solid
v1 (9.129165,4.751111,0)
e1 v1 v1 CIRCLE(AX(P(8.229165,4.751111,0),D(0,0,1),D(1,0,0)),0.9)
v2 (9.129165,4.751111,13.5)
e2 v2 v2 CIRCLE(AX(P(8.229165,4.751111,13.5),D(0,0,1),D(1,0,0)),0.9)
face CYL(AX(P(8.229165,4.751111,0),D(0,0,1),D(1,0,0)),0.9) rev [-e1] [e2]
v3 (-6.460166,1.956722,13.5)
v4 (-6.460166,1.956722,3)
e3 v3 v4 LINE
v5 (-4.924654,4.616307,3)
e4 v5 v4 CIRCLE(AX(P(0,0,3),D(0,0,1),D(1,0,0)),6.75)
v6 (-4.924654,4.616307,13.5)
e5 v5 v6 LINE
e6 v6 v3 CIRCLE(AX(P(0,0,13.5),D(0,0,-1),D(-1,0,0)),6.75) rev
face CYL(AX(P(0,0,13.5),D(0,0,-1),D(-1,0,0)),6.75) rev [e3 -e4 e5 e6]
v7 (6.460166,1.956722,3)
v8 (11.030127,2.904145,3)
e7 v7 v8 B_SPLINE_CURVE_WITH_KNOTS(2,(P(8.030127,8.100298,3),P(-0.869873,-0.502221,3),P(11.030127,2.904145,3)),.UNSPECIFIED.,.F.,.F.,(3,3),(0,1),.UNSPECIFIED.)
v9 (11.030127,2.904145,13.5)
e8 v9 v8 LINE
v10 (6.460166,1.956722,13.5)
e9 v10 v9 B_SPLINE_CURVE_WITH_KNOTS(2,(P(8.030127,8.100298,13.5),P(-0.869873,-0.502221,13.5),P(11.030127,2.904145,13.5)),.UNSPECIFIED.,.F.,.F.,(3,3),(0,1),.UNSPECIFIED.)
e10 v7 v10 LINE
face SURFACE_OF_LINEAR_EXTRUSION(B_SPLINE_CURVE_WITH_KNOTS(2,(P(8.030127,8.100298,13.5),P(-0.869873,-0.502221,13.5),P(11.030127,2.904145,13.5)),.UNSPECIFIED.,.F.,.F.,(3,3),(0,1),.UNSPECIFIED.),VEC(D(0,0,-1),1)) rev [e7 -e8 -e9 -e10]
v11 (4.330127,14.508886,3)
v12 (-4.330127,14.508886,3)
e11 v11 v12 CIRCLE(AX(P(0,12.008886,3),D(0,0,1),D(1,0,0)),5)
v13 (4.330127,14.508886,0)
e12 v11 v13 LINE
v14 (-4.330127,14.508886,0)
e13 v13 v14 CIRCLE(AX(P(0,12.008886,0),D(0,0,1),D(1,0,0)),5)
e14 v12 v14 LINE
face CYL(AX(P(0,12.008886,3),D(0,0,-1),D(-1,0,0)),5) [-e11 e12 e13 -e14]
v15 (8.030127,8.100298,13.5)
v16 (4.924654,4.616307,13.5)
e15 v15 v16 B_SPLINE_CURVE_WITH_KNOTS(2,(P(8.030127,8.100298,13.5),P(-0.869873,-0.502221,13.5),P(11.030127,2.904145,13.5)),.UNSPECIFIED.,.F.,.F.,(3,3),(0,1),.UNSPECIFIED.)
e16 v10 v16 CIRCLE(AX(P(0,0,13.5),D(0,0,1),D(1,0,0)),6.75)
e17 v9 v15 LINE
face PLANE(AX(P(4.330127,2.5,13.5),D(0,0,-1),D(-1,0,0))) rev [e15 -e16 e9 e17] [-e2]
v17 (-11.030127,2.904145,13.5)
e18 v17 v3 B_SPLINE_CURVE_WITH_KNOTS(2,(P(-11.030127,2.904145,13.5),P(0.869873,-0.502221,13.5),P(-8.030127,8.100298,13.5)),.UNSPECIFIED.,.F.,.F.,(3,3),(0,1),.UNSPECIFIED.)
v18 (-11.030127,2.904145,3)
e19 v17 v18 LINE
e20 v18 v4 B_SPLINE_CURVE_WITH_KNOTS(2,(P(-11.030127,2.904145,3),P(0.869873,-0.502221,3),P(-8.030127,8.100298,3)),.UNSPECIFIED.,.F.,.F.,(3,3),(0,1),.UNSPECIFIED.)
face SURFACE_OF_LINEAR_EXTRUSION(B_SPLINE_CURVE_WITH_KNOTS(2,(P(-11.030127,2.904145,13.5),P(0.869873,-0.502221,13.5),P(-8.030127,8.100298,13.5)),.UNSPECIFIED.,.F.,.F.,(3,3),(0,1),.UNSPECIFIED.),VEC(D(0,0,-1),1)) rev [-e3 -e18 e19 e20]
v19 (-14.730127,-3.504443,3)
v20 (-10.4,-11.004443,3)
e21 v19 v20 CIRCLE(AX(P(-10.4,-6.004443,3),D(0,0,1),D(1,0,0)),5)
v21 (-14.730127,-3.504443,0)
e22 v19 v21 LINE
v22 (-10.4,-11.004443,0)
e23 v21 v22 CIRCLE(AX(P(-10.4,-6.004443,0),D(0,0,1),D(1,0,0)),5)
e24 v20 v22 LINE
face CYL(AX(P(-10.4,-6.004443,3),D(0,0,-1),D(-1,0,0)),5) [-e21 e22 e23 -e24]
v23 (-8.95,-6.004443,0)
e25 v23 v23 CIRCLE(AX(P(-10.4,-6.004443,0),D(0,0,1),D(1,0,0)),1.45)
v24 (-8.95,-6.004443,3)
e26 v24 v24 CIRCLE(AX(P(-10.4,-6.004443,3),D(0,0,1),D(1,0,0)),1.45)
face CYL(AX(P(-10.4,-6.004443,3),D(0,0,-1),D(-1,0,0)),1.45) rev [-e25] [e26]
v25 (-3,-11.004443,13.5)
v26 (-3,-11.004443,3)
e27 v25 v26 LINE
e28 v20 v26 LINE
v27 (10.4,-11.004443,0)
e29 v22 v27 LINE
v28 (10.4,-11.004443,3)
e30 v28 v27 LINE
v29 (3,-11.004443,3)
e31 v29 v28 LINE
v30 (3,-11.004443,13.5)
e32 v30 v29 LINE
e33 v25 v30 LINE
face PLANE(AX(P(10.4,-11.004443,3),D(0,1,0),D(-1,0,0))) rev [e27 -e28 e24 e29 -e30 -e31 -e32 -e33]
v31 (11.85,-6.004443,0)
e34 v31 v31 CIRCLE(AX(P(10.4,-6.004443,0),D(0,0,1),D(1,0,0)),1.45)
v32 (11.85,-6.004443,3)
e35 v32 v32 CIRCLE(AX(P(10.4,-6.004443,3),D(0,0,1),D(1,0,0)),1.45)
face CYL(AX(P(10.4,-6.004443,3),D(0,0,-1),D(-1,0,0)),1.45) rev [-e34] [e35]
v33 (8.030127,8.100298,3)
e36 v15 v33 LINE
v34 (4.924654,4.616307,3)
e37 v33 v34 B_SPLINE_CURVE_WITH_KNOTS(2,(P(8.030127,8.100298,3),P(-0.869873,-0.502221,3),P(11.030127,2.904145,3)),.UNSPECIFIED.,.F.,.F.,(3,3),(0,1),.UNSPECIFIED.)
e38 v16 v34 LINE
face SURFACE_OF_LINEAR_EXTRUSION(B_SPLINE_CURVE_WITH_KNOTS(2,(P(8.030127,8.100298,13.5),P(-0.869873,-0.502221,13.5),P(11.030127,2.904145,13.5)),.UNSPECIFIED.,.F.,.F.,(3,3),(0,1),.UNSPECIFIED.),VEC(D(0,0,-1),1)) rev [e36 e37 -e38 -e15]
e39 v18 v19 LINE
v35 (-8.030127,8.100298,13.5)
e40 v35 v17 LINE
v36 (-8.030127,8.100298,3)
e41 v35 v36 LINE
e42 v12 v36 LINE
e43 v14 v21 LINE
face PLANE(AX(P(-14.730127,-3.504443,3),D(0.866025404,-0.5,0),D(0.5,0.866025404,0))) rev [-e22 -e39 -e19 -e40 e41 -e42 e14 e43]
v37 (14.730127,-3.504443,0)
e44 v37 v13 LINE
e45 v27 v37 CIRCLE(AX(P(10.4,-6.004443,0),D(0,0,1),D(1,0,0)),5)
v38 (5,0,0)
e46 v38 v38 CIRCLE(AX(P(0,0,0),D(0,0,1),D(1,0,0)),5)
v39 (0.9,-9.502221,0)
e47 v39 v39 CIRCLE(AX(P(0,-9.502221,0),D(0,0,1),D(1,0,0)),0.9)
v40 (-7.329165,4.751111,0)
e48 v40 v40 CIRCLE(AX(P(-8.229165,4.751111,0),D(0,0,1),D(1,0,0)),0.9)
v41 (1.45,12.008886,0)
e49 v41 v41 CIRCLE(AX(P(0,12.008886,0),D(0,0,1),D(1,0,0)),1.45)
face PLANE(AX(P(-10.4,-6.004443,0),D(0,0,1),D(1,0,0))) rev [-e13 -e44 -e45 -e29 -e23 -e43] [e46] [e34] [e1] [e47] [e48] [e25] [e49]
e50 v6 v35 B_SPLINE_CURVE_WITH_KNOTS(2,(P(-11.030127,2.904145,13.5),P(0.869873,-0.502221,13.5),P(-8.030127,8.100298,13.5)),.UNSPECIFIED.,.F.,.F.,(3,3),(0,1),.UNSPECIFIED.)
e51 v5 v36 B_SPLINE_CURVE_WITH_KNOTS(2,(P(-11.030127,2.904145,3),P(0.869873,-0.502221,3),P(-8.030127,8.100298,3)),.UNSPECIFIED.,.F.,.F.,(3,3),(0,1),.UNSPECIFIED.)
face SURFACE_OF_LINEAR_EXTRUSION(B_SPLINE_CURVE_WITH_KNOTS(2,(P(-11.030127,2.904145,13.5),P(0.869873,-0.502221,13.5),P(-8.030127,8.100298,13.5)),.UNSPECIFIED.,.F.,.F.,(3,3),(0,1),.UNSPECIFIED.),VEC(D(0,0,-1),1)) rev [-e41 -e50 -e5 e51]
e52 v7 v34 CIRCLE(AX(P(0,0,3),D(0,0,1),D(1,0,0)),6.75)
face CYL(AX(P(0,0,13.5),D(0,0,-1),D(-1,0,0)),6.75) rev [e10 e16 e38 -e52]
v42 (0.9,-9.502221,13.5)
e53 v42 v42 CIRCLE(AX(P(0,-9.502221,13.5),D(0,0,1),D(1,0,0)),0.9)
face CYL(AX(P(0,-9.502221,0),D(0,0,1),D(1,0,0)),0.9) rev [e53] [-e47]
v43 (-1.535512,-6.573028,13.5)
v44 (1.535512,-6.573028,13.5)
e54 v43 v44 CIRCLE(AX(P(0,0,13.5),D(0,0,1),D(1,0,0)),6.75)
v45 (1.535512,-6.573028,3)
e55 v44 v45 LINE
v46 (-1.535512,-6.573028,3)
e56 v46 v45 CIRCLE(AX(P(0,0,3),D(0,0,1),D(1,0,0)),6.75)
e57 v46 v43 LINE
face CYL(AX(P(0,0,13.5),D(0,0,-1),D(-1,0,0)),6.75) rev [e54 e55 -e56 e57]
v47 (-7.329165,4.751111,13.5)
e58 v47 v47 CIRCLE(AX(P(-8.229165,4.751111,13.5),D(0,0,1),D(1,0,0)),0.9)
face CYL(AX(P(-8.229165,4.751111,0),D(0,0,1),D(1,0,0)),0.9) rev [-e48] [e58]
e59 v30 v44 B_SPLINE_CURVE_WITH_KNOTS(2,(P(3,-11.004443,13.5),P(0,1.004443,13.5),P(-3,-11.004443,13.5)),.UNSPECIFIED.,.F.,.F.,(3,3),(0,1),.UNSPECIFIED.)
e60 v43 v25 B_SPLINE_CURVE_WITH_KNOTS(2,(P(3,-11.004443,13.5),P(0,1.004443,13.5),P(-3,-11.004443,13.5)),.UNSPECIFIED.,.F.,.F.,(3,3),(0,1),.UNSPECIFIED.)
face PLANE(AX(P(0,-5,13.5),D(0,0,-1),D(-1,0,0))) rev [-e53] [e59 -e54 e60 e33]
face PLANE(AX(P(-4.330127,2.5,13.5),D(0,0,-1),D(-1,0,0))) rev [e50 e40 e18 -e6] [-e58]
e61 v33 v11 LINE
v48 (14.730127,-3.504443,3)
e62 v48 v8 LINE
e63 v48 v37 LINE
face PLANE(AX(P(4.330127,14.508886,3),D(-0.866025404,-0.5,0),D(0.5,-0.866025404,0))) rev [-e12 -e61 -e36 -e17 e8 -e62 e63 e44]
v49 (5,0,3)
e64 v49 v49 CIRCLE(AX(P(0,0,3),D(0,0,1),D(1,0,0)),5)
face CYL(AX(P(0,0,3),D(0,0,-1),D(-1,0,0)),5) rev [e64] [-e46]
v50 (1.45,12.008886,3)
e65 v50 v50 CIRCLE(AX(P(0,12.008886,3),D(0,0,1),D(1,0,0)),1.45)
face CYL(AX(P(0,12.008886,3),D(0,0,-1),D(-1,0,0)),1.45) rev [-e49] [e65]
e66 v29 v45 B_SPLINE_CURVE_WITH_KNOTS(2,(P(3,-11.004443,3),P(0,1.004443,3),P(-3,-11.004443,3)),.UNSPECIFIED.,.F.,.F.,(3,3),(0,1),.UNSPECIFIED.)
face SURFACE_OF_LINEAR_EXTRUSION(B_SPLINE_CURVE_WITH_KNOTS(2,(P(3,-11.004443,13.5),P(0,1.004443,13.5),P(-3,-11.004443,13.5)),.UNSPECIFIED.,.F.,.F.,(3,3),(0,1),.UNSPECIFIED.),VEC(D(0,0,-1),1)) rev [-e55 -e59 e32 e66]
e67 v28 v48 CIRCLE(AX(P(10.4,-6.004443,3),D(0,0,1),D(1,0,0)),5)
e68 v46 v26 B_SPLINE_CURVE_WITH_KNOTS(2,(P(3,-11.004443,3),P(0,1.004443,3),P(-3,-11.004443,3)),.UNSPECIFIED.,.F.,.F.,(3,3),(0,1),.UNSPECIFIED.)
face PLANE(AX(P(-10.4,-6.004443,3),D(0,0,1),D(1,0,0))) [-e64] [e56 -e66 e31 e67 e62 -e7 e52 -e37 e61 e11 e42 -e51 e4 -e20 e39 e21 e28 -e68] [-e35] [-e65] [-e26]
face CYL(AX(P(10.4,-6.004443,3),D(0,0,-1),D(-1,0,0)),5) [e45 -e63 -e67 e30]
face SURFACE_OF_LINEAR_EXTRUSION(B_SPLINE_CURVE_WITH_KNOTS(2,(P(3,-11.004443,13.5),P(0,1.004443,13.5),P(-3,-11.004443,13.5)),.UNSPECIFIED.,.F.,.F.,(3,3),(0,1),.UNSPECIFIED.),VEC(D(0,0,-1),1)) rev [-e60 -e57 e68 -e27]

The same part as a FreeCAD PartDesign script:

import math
import FreeCAD as App
import Part
import Sketcher

V = App.Vector
Q = App.Units.Quantity

doc = App.newDocument("Part")
body = doc.addObject("PartDesign::Body", "Body")

# Sketch on XY plane
sketch1 = body.newObject("Sketcher::SketchObject", "Sketch")
sketch1.AttachmentSupport = (doc.getObject("XY_Plane"), [""])
sketch1.MapMode = "FlatFace"
sketch1.addGeometry([
    Part.LineSegment(V(-4.3, 14.5, 0), V(-14.7, -3.5, 0)),  # 0
    Part.ArcOfCircle(Part.Circle(V(-10.4, -6, 0), V(0, 0, 1), 5), math.radians(150), math.radians(270)),  # 1
    Part.LineSegment(V(-10.4, -11, 0), V(10.4, -11, 0)),  # 2
    Part.ArcOfCircle(Part.Circle(V(10.4, -6, 0), V(0, 0, 1), 5), math.radians(-90), math.radians(30)),  # 3
    Part.LineSegment(V(14.7, -3.5, 0), V(4.3, 14.5, 0)),  # 4
    Part.ArcOfCircle(Part.Circle(V(0, 12, 0), V(0, 0, 1), 5), math.radians(30), math.radians(150)),  # 5
    Part.Circle(V(10.4, -6, 0), V(0, 0, 1), 1.4),  # 6
    Part.Circle(V(0, 0, 0), V(0, 0, 1), 5),  # 7
    Part.Circle(V(-10.4, -6, 0), V(0, 0, 1), 1.4),  # 8
    Part.Circle(V(0, 12, 0), V(0, 0, 1), 1.4),  # 9
], False)
sketch1.addConstraint([
    Sketcher.Constraint("Tangent", 0, 2, 1, 1),
    Sketcher.Constraint("Tangent", 1, 2, 2, 1),
    Sketcher.Constraint("Tangent", 2, 2, 3, 1),
    Sketcher.Constraint("Tangent", 3, 2, 4, 1),
    Sketcher.Constraint("Tangent", 4, 2, 5, 1),
    Sketcher.Constraint("Tangent", 5, 2, 0, 1),
    Sketcher.Constraint("Horizontal", 2),
    Sketcher.Constraint("Coincident", 7, 3, -1, 1),
    Sketcher.Constraint("Coincident", 6, 3, 3, 3),
    Sketcher.Constraint("Coincident", 8, 3, 1, 3),
    Sketcher.Constraint("Coincident", 9, 3, 5, 3),
    Sketcher.Constraint("Equal", 1, 3),
    Sketcher.Constraint("Equal", 3, 5),
    Sketcher.Constraint("Equal", 5, 7),
    Sketcher.Constraint("Equal", 6, 8),
    Sketcher.Constraint("Equal", 8, 9),
    Sketcher.Constraint("Symmetric", 0, 2, 3, 2, -2),
    Sketcher.Constraint("Diameter", 7, Q("10 mm")),
    Sketcher.Constraint("Diameter", 6, Q("2.9 mm")),
    Sketcher.Constraint("Angle", 0, Q("-120 deg")),
    Sketcher.Constraint("DistanceX", 2, 1, 2, 2, Q("20.8 mm")),
    Sketcher.Constraint("DistanceY", 1, 3, -1, 1, Q("6.004443 mm")),
])
pad1 = body.newObject("PartDesign::Pad", "Pad")
pad1.Profile = sketch1
pad1.Length = 3

# Sketch on XY plane
sketch2 = body.newObject("Sketcher::SketchObject", "Sketch001")
sketch2.AttachmentSupport = (doc.getObject("XY_Plane"), [""])
sketch2.MapMode = "FlatFace"
sketch2.AttachmentOffset = App.Placement(V(0, 0, 3), App.Rotation())
sketch2.addGeometry([
    Part.LineSegment(V(11.030127, 2.904145, 0), V(8.030127, 8.100298, 0)),  # 0
    Part.BSplineCurve([V(8.030127, 8.100298, 0), V(-0.869873, -0.502221, 0), V(11.030127, 2.904145, 0)], [3, 3], [0, 1], False, 2, [1, 1, 1], False),  # 1
    Part.LineSegment(V(-3, -11.004443, 0), V(3, -11.004443, 0)),  # 2
    Part.BSplineCurve([V(3, -11.004443, 0), V(0, 1.004443, 0), V(-3, -11.004443, 0)], [3, 3], [0, 1], False, 2, [1, 1, 1], False),  # 3
    Part.LineSegment(V(-8.030127, 8.100298, 0), V(-11.030127, 2.904145, 0)),  # 4
    Part.BSplineCurve([V(-11.030127, 2.904145, 0), V(0.869873, -0.502221, 0), V(-8.030127, 8.100298, 0)], [3, 3], [0, 1], False, 2, [1, 1, 1], False),  # 5
], False)
sketch2.addConstraint([
    Sketcher.Constraint("Block", 1),
    Sketcher.Constraint("Block", 3),
    Sketcher.Constraint("Block", 5),
    Sketcher.Constraint("Coincident", 0, 1, 1, 2),
    Sketcher.Constraint("Coincident", 1, 1, 0, 2),
    Sketcher.Constraint("Coincident", 2, 1, 3, 2),
    Sketcher.Constraint("Coincident", 3, 1, 2, 2),
    Sketcher.Constraint("Coincident", 4, 1, 5, 2),
    Sketcher.Constraint("Coincident", 5, 1, 4, 2),
])
pad2 = body.newObject("PartDesign::Pad", "Pad001")
pad2.Profile = sketch2
pad2.Length = 10.5

# Sketch on XY plane
sketch3 = body.newObject("Sketcher::SketchObject", "Sketch002")
sketch3.AttachmentSupport = (doc.getObject("XY_Plane"), [""])
sketch3.MapMode = "FlatFace"
sketch3.AttachmentOffset = App.Placement(V(0, 0, 3), App.Rotation())
sketch3.addGeometry(Part.Circle(V(0, 0, 0), V(0, 0, 1), 7), False)
sketch3.addConstraint([
    Sketcher.Constraint("Coincident", 0, 3, -1, 1),
    Sketcher.Constraint("Diameter", 0, Q("13.5 mm")),
])
pocket1 = body.newObject("PartDesign::Pocket", "Pocket")
pocket1.Profile = sketch3
pocket1.Type = "ThroughAll"
pocket1.Reversed = True

# Sketch on XY plane
sketch4 = body.newObject("Sketcher::SketchObject", "Sketch003")
sketch4.AttachmentSupport = (doc.getObject("XY_Plane"), [""])
sketch4.MapMode = "FlatFace"
sketch4.AttachmentOffset = App.Placement(V(0, 0, 13.5), App.Rotation())
sketch4.addGeometry([
    Part.Circle(V(8.2, 4.8, 0), V(0, 0, 1), 0.9),
    Part.Circle(V(0, -9.5, 0), V(0, 0, 1), 0.9),
    Part.Circle(V(-8.2, 4.8, 0), V(0, 0, 1), 0.9),
], False)
sketch4.addConstraint([
    Sketcher.Constraint("Equal", 0, 1),
    Sketcher.Constraint("Equal", 1, 2),
    Sketcher.Constraint("Symmetric", 0, 3, 2, 3, -2),
    Sketcher.Constraint("PointOnObject", 1, 3, -2),
    Sketcher.Constraint("Diameter", 0, Q("1.8 mm")),
    Sketcher.Constraint("DistanceY", -1, 1, 0, 3, Q("4.751111 mm")),
    Sketcher.Constraint("DistanceY", 1, 3, -1, 1, Q("9.502221 mm")),
    Sketcher.Constraint("DistanceX", 2, 3, 0, 3, Q("16.45833 mm")),
])
pocket2 = body.newObject("PartDesign::Pocket", "Pocket001")
pocket2.Profile = sketch4
pocket2.Type = "ThroughAll"

doc.recompute()
